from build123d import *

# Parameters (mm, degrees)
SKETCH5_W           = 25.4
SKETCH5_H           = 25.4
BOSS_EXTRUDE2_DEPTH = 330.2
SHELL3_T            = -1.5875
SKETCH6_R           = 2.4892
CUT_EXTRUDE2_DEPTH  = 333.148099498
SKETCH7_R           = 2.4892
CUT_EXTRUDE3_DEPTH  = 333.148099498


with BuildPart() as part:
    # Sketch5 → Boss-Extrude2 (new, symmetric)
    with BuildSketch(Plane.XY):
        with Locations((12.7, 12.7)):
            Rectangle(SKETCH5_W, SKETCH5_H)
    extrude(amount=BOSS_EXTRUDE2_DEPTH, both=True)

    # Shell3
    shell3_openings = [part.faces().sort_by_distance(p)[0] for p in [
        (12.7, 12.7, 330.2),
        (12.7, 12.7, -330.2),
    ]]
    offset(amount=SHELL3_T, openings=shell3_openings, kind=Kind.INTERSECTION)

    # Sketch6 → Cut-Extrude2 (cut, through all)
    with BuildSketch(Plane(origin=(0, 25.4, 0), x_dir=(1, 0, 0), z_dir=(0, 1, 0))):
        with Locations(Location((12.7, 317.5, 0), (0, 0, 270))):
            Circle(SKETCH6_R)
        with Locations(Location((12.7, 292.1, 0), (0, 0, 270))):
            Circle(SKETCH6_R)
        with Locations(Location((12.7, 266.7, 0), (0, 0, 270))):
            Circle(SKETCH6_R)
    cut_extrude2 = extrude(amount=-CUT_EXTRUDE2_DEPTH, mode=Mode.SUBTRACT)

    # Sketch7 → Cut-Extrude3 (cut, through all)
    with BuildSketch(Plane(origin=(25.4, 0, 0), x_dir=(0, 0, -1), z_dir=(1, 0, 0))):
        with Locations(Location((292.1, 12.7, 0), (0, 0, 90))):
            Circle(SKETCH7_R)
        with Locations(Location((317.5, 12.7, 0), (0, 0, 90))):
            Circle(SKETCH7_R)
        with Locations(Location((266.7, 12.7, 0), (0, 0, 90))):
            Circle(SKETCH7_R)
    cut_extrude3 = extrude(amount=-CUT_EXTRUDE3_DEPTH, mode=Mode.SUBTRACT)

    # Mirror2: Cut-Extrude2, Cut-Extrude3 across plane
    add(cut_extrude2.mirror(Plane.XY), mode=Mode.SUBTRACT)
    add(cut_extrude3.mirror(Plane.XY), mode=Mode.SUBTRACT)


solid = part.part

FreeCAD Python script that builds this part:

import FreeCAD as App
import Part
import Sketcher

V = App.Vector
Q = App.Units.Quantity


def faces_at(feature, points):
    """Names of the faces that lie closest to the given points."""
    faces = feature.Shape.Faces
    near = lambda p: min(range(len(faces)), key=lambda i: faces[i].distToShape(Part.Vertex(*p))[0])
    return sorted({f"Face{near(p) + 1}" for p in points})

doc = App.newDocument("Part")
body = doc.addObject("PartDesign::Body", "Body")

sketch1 = body.newObject("Sketcher::SketchObject", "Sketch")
sketch1.AttachmentSupport = (doc.getObject("XY_Plane"), [""])
sketch1.MapMode = "FlatFace"
sketch1.addGeometry(Part.LineSegment(V(0, 25, 0), V(0, 0, 0)), False)
sketch1.addGeometry(Part.LineSegment(V(0, 0, 0), V(25, 0, 0)), False)
sketch1.addGeometry(Part.LineSegment(V(25, 0, 0), V(25, 25, 0)), False)
sketch1.addGeometry(Part.LineSegment(V(25, 25, 0), V(0, 25, 0)), False)
sketch1.addConstraint(Sketcher.Constraint("Coincident", 0, 2, 1, 1))
sketch1.addConstraint(Sketcher.Constraint("Coincident", 1, 2, 2, 1))
sketch1.addConstraint(Sketcher.Constraint("Coincident", 2, 2, 3, 1))
sketch1.addConstraint(Sketcher.Constraint("Coincident", 3, 2, 0, 1))
sketch1.addConstraint(Sketcher.Constraint("Vertical", 0))
sketch1.addConstraint(Sketcher.Constraint("Horizontal", 1))
sketch1.addConstraint(Sketcher.Constraint("Vertical", 2))
sketch1.addConstraint(Sketcher.Constraint("Horizontal", 3))
sketch1.addConstraint(Sketcher.Constraint("Coincident", 0, 2, -1, 1))
sketch1.addConstraint(Sketcher.Constraint("Equal", 3, 0))
sketch1.addConstraint(Sketcher.Constraint("DistanceX", 1, 1, 1, 2, Q("1 in")))
pad1 = body.newObject("PartDesign::Pad", "Pad")
pad1.Profile = sketch1
pad1.Length = Q("26 in")
pad1.Midplane = True
doc.recompute()

thickness = body.newObject("PartDesign::Thickness", "Thickness")
thickness.Base = (pad1, faces_at(pad1, [(12.7, 12.7, 330.2), (12.7, 12.7, -330.2)]))
thickness.Value = Q("0.0625 in")
thickness.Reversed = True
thickness.Join = "Intersection"

sketch2 = body.newObject("Sketcher::SketchObject", "Sketch001")
sketch2.AttachmentSupport = (doc.getObject("XZ_Plane"), [""])
sketch2.MapMode = "FlatFace"
sketch2.AttachmentOffset = App.Placement(V(0, 0, -1 * 25.4), App.Rotation())
sketch2.addGeometry(Part.Circle(V(12.7, -317.5, 0), V(0, 0, 1), 2.5), False)
sketch2.addGeometry(Part.Circle(V(12.7, -292.1, 0), V(0, 0, 1), 2.5), False)
sketch2.addGeometry(Part.Circle(V(12.7, -266.7, 0), V(0, 0, 1), 2.5), False)
sketch2.addConstraint(Sketcher.Constraint("Equal", 0, 1))
sketch2.addConstraint(Sketcher.Constraint("Equal", 1, 2))
sketch2.addConstraint(Sketcher.Constraint("Vertical", 0, 3, 1, 3))
sketch2.addConstraint(Sketcher.Constraint("Vertical", 1, 3, 2, 3))
sketch2.addConstraint(Sketcher.Constraint("Diameter", 0, Q("0.196 in")))
sketch2.addConstraint(Sketcher.Constraint("DistanceY", 0, 3, 1, 3, Q("1 in")))
sketch2.addConstraint(Sketcher.Constraint("DistanceY", 1, 3, 2, 3, Q("1 in")))
sketch2.addConstraint(Sketcher.Constraint("DistanceX", -1, 1, 0, 3, Q("0.5 in")))
sketch2.addConstraint(Sketcher.Constraint("DistanceY", 0, 3, -1, 1, Q("12.5 in")))
pocket1 = body.newObject("PartDesign::Pocket", "Pocket")
pocket1.Profile = sketch2
pocket1.Type = "ThroughAll"
pocket1.Reversed = True

sketch3 = body.newObject("Sketcher::SketchObject", "Sketch002")
sketch3.AttachmentSupport = (doc.getObject("YZ_Plane"), [""])
sketch3.MapMode = "FlatFace"
sketch3.AttachmentOffset = App.Placement(V(0, 0, 1 * 25.4), App.Rotation())
sketch3.addGeometry(Part.Circle(V(12.7, -292.1, 0), V(0, 0, 1), 2.5), False)
sketch3.addGeometry(Part.Circle(V(12.7, -317.5, 0), V(0, 0, 1), 2.5), False)
sketch3.addGeometry(Part.Circle(V(12.7, -266.7, 0), V(0, 0, 1), 2.5), False)
sketch3.addConstraint(Sketcher.Constraint("Equal", 0, 1))
sketch3.addConstraint(Sketcher.Constraint("Equal", 1, 2))
sketch3.addConstraint(Sketcher.Constraint("Vertical", 0, 3, 1, 3))
sketch3.addConstraint(Sketcher.Constraint("Vertical", 1, 3, 2, 3))
sketch3.addConstraint(Sketcher.Constraint("Diameter", 0, Q("0.196 in")))
sketch3.addConstraint(Sketcher.Constraint("DistanceY", 1, 3, 0, 3, Q("1 in")))
sketch3.addConstraint(Sketcher.Constraint("DistanceY", 0, 3, 2, 3, Q("1 in")))
sketch3.addConstraint(Sketcher.Constraint("DistanceX", -1, 1, 0, 3, Q("0.5 in")))
sketch3.addConstraint(Sketcher.Constraint("DistanceY", 0, 3, -1, 1, Q("11.5 in")))
pocket2 = body.newObject("PartDesign::Pocket", "Pocket001")
pocket2.Profile = sketch3
pocket2.Type = "ThroughAll"
doc.recompute()

mirrored = body.newObject("PartDesign::Mirrored", "Mirrored")
mirrored.Originals = [pocket1, pocket2]
mirrored.MirrorPlane = (doc.getObject("XY_Plane"), [""])
body.Tip = mirrored

doc.recompute()
